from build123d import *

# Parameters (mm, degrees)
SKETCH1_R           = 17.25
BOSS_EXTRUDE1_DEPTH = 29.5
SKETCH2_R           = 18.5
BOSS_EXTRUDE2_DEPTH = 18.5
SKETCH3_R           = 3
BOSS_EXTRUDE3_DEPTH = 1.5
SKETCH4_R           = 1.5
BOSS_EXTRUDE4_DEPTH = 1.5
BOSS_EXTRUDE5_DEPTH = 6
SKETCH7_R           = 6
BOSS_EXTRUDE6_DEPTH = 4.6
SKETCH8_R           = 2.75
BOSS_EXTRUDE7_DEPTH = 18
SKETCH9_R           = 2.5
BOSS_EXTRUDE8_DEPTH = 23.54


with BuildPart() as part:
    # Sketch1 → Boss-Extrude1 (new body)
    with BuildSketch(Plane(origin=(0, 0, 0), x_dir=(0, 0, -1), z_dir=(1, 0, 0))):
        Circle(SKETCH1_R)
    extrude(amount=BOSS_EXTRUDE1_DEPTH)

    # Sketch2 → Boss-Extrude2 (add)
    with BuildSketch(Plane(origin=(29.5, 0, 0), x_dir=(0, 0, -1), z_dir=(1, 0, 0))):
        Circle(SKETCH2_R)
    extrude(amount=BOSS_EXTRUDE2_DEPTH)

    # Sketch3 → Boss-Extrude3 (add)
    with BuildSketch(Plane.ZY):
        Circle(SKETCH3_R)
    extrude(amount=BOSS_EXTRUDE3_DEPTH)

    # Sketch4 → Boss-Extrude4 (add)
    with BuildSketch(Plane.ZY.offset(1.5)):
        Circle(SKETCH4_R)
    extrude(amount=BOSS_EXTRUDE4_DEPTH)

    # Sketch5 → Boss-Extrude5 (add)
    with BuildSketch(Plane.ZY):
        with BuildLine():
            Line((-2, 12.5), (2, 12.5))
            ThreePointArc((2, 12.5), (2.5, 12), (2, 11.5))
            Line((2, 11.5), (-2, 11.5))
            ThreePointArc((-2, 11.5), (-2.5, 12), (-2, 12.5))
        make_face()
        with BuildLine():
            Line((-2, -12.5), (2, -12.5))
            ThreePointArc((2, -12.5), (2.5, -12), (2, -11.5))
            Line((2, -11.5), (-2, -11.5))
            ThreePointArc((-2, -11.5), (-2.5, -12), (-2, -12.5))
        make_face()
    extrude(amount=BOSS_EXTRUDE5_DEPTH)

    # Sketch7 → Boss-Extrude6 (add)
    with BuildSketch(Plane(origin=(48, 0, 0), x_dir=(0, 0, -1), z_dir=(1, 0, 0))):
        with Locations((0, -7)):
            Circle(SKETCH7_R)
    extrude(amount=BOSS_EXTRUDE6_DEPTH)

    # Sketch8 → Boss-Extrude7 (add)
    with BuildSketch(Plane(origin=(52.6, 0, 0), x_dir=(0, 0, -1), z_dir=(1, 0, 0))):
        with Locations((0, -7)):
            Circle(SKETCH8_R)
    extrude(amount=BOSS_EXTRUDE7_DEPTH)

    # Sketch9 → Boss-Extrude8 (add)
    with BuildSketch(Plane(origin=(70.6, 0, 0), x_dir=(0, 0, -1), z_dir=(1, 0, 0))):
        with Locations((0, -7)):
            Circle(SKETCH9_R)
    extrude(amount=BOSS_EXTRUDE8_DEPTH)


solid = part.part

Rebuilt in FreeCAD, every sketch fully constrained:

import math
import FreeCAD as App
import Part
import Sketcher

V = App.Vector

doc = App.newDocument("Part")
body = doc.addObject("PartDesign::Body", "Body")

sketch1 = doc.addObject("Sketcher::SketchObject", "Sketch")
body.addObject(sketch1)
sketch1.AttachmentSupport = (doc.YZ_Plane, [""])
sketch1.MapMode = "FlatFace"
sketch1.addGeometry(Part.Circle(V(0, 0, 0), V(0, 0, 1), 17), False)
sketch1.addConstraint(Sketcher.Constraint("Coincident", 0, 3, -1, 1))
sketch1.addConstraint(Sketcher.Constraint("Diameter", 0, 34.5))
pad1 = doc.addObject("PartDesign::Pad", "Pad")
body.addObject(pad1)
pad1.Profile = sketch1
pad1.Length = 29.5

sketch2 = doc.addObject("Sketcher::SketchObject", "Sketch001")
body.addObject(sketch2)
sketch2.AttachmentSupport = (doc.YZ_Plane, [""])
sketch2.MapMode = "FlatFace"
sketch2.AttachmentOffset = App.Placement(V(0, 0, 29.5), App.Rotation())
sketch2.addGeometry(Part.Circle(V(0, 0, 0), V(0, 0, 1), 18), False)
sketch2.addConstraint(Sketcher.Constraint("Coincident", 0, 3, -1, 1))
sketch2.addConstraint(Sketcher.Constraint("Diameter", 0, 37.0))
pad2 = doc.addObject("PartDesign::Pad", "Pad001")
body.addObject(pad2)
pad2.Profile = sketch2
pad2.Length = 18.5

sketch3 = doc.addObject("Sketcher::SketchObject", "Sketch002")
body.addObject(sketch3)
sketch3.AttachmentSupport = (doc.YZ_Plane, [""])
sketch3.MapMode = "FlatFace"
sketch3.addGeometry(Part.Circle(V(0, 0, 0), V(0, 0, 1), 3), False)
sketch3.addConstraint(Sketcher.Constraint("Coincident", 0, 3, -1, 1))
sketch3.addConstraint(Sketcher.Constraint("Diameter", 0, 6.0))
pad3 = doc.addObject("PartDesign::Pad", "Pad002")
body.addObject(pad3)
pad3.Profile = sketch3
pad3.Length = 1.5
pad3.Reversed = True

sketch4 = doc.addObject("Sketcher::SketchObject", "Sketch003")
body.addObject(sketch4)
sketch4.AttachmentSupport = (doc.YZ_Plane, [""])
sketch4.MapMode = "FlatFace"
sketch4.AttachmentOffset = App.Placement(V(0, 0, -1.5), App.Rotation())
sketch4.addGeometry(Part.Circle(V(0, 0, 0), V(0, 0, 1), 1.5), False)
sketch4.addConstraint(Sketcher.Constraint("Coincident", 0, 3, -1, 1))
sketch4.addConstraint(Sketcher.Constraint("Diameter", 0, 3.0))
pad4 = doc.addObject("PartDesign::Pad", "Pad003")
body.addObject(pad4)
pad4.Profile = sketch4
pad4.Length = 1.5
pad4.Reversed = True

sketch5 = doc.addObject("Sketcher::SketchObject", "Sketch004")
body.addObject(sketch5)
sketch5.AttachmentSupport = (doc.YZ_Plane, [""])
sketch5.MapMode = "FlatFace"
sketch5.addGeometry(Part.LineSegment(V(12.5, 2, 0), V(12.5, -2, 0)), False)
sketch5.addGeometry(Part.ArcOfCircle(Part.Circle(V(12, -2, 0), V(0, 0, 1), 0.5), math.radians(180), math.radians(360)), False)
sketch5.addGeometry(Part.LineSegment(V(11.5, -2, 0), V(11.5, 2, 0)), False)
sketch5.addGeometry(Part.ArcOfCircle(Part.Circle(V(12, 2, 0), V(0, 0, 1), 0.5), math.radians(0), math.radians(180)), False)
sketch5.addGeometry(Part.LineSegment(V(-12.5, -2, 0), V(-12.5, 2, 0)), False)
sketch5.addGeometry(Part.ArcOfCircle(Part.Circle(V(-12, 2, 0), V(0, 0, 1), 0.5), math.radians(0), math.radians(180)), False)
sketch5.addGeometry(Part.LineSegment(V(-11.5, 2, 0), V(-11.5, -2, 0)), False)
sketch5.addGeometry(Part.ArcOfCircle(Part.Circle(V(-12, -2, 0), V(0, 0, 1), 0.5), math.radians(180), math.radians(360)), False)
sketch5.addConstraint(Sketcher.Constraint("Tangent", 0, 2, 1, 2))
sketch5.addConstraint(Sketcher.Constraint("Tangent", 1, 1, 2, 1))
sketch5.addConstraint(Sketcher.Constraint("Tangent", 2, 2, 3, 2))
sketch5.addConstraint(Sketcher.Constraint("Tangent", 3, 1, 0, 1))
sketch5.addConstraint(Sketcher.Constraint("Tangent", 4, 2, 5, 2))
sketch5.addConstraint(Sketcher.Constraint("Tangent", 5, 1, 6, 1))
sketch5.addConstraint(Sketcher.Constraint("Tangent", 6, 2, 7, 2))
sketch5.addConstraint(Sketcher.Constraint("Tangent", 7, 1, 4, 1))
sketch5.addConstraint(Sketcher.Constraint("Vertical", 0))
sketch5.addConstraint(Sketcher.Constraint("Vertical", 2))
sketch5.addConstraint(Sketcher.Constraint("Vertical", 4))
sketch5.addConstraint(Sketcher.Constraint("Vertical", 6))
sketch5.addConstraint(Sketcher.Constraint("Equal", 3, 5))
sketch5.addConstraint(Sketcher.Constraint("Symmetric", 1, 3, 5, 3, -1, 1))
sketch5.addConstraint(Sketcher.Constraint("Horizontal", 3, 3, 5, 3))
sketch5.addConstraint(Sketcher.Constraint("Horizontal", 1, 3, 7, 3))
sketch5.addConstraint(Sketcher.Constraint("Radius", 1, 0.5))
sketch5.addConstraint(Sketcher.Constraint("DistanceY", 0, 2, 0, 1, 4.0))
sketch5.addConstraint(Sketcher.Constraint("DistanceX", -1, 1, 1, 3, 12.0))
pad5 = doc.addObject("PartDesign::Pad", "Pad004")
body.addObject(pad5)
pad5.Profile = sketch5
pad5.Length = 6
pad5.Reversed = True

sketch6 = doc.addObject("Sketcher::SketchObject", "Sketch005")
body.addObject(sketch6)
sketch6.AttachmentSupport = (doc.YZ_Plane, [""])
sketch6.MapMode = "FlatFace"
sketch6.AttachmentOffset = App.Placement(V(0, 0, 48), App.Rotation())
sketch6.addGeometry(Part.Circle(V(-7, 0, 0), V(0, 0, 1), 6), False)
sketch6.addConstraint(Sketcher.Constraint("PointOnObject", 0, 3, -1))
sketch6.addConstraint(Sketcher.Constraint("Diameter", 0, 12.0))
sketch6.addConstraint(Sketcher.Constraint("DistanceX", 0, 3, -1, 1, 7.0))
pad6 = doc.addObject("PartDesign::Pad", "Pad005")
body.addObject(pad6)
pad6.Profile = sketch6
pad6.Length = 4.6

sketch7 = doc.addObject("Sketcher::SketchObject", "Sketch006")
body.addObject(sketch7)
sketch7.AttachmentSupport = (doc.YZ_Plane, [""])
sketch7.MapMode = "FlatFace"
sketch7.AttachmentOffset = App.Placement(V(0, 0, 52.6), App.Rotation())
sketch7.addGeometry(Part.Circle(V(-7, 0, 0), V(0, 0, 1), 2.8), False)
sketch7.addConstraint(Sketcher.Constraint("PointOnObject", 0, 3, -1))
sketch7.addConstraint(Sketcher.Constraint("Diameter", 0, 5.5))
sketch7.addConstraint(Sketcher.Constraint("DistanceX", 0, 3, -1, 1, 7.0))
pad7 = doc.addObject("PartDesign::Pad", "Pad006")
body.addObject(pad7)
pad7.Profile = sketch7
pad7.Length = 18

sketch8 = doc.addObject("Sketcher::SketchObject", "Sketch007")
body.addObject(sketch8)
sketch8.AttachmentSupport = (doc.YZ_Plane, [""])
sketch8.MapMode = "FlatFace"
sketch8.AttachmentOffset = App.Placement(V(0, 0, 70.6), App.Rotation())
sketch8.addGeometry(Part.Circle(V(-7, 0, 0), V(0, 0, 1), 2.5), False)
sketch8.addConstraint(Sketcher.Constraint("PointOnObject", 0, 3, -1))
sketch8.addConstraint(Sketcher.Constraint("Diameter", 0, 5.0))
sketch8.addConstraint(Sketcher.Constraint("DistanceX", 0, 3, -1, 1, 7.0))
pad8 = doc.addObject("PartDesign::Pad", "Pad007")
body.addObject(pad8)
pad8.Profile = sketch8
pad8.Length = 23.54

doc.recompute()
